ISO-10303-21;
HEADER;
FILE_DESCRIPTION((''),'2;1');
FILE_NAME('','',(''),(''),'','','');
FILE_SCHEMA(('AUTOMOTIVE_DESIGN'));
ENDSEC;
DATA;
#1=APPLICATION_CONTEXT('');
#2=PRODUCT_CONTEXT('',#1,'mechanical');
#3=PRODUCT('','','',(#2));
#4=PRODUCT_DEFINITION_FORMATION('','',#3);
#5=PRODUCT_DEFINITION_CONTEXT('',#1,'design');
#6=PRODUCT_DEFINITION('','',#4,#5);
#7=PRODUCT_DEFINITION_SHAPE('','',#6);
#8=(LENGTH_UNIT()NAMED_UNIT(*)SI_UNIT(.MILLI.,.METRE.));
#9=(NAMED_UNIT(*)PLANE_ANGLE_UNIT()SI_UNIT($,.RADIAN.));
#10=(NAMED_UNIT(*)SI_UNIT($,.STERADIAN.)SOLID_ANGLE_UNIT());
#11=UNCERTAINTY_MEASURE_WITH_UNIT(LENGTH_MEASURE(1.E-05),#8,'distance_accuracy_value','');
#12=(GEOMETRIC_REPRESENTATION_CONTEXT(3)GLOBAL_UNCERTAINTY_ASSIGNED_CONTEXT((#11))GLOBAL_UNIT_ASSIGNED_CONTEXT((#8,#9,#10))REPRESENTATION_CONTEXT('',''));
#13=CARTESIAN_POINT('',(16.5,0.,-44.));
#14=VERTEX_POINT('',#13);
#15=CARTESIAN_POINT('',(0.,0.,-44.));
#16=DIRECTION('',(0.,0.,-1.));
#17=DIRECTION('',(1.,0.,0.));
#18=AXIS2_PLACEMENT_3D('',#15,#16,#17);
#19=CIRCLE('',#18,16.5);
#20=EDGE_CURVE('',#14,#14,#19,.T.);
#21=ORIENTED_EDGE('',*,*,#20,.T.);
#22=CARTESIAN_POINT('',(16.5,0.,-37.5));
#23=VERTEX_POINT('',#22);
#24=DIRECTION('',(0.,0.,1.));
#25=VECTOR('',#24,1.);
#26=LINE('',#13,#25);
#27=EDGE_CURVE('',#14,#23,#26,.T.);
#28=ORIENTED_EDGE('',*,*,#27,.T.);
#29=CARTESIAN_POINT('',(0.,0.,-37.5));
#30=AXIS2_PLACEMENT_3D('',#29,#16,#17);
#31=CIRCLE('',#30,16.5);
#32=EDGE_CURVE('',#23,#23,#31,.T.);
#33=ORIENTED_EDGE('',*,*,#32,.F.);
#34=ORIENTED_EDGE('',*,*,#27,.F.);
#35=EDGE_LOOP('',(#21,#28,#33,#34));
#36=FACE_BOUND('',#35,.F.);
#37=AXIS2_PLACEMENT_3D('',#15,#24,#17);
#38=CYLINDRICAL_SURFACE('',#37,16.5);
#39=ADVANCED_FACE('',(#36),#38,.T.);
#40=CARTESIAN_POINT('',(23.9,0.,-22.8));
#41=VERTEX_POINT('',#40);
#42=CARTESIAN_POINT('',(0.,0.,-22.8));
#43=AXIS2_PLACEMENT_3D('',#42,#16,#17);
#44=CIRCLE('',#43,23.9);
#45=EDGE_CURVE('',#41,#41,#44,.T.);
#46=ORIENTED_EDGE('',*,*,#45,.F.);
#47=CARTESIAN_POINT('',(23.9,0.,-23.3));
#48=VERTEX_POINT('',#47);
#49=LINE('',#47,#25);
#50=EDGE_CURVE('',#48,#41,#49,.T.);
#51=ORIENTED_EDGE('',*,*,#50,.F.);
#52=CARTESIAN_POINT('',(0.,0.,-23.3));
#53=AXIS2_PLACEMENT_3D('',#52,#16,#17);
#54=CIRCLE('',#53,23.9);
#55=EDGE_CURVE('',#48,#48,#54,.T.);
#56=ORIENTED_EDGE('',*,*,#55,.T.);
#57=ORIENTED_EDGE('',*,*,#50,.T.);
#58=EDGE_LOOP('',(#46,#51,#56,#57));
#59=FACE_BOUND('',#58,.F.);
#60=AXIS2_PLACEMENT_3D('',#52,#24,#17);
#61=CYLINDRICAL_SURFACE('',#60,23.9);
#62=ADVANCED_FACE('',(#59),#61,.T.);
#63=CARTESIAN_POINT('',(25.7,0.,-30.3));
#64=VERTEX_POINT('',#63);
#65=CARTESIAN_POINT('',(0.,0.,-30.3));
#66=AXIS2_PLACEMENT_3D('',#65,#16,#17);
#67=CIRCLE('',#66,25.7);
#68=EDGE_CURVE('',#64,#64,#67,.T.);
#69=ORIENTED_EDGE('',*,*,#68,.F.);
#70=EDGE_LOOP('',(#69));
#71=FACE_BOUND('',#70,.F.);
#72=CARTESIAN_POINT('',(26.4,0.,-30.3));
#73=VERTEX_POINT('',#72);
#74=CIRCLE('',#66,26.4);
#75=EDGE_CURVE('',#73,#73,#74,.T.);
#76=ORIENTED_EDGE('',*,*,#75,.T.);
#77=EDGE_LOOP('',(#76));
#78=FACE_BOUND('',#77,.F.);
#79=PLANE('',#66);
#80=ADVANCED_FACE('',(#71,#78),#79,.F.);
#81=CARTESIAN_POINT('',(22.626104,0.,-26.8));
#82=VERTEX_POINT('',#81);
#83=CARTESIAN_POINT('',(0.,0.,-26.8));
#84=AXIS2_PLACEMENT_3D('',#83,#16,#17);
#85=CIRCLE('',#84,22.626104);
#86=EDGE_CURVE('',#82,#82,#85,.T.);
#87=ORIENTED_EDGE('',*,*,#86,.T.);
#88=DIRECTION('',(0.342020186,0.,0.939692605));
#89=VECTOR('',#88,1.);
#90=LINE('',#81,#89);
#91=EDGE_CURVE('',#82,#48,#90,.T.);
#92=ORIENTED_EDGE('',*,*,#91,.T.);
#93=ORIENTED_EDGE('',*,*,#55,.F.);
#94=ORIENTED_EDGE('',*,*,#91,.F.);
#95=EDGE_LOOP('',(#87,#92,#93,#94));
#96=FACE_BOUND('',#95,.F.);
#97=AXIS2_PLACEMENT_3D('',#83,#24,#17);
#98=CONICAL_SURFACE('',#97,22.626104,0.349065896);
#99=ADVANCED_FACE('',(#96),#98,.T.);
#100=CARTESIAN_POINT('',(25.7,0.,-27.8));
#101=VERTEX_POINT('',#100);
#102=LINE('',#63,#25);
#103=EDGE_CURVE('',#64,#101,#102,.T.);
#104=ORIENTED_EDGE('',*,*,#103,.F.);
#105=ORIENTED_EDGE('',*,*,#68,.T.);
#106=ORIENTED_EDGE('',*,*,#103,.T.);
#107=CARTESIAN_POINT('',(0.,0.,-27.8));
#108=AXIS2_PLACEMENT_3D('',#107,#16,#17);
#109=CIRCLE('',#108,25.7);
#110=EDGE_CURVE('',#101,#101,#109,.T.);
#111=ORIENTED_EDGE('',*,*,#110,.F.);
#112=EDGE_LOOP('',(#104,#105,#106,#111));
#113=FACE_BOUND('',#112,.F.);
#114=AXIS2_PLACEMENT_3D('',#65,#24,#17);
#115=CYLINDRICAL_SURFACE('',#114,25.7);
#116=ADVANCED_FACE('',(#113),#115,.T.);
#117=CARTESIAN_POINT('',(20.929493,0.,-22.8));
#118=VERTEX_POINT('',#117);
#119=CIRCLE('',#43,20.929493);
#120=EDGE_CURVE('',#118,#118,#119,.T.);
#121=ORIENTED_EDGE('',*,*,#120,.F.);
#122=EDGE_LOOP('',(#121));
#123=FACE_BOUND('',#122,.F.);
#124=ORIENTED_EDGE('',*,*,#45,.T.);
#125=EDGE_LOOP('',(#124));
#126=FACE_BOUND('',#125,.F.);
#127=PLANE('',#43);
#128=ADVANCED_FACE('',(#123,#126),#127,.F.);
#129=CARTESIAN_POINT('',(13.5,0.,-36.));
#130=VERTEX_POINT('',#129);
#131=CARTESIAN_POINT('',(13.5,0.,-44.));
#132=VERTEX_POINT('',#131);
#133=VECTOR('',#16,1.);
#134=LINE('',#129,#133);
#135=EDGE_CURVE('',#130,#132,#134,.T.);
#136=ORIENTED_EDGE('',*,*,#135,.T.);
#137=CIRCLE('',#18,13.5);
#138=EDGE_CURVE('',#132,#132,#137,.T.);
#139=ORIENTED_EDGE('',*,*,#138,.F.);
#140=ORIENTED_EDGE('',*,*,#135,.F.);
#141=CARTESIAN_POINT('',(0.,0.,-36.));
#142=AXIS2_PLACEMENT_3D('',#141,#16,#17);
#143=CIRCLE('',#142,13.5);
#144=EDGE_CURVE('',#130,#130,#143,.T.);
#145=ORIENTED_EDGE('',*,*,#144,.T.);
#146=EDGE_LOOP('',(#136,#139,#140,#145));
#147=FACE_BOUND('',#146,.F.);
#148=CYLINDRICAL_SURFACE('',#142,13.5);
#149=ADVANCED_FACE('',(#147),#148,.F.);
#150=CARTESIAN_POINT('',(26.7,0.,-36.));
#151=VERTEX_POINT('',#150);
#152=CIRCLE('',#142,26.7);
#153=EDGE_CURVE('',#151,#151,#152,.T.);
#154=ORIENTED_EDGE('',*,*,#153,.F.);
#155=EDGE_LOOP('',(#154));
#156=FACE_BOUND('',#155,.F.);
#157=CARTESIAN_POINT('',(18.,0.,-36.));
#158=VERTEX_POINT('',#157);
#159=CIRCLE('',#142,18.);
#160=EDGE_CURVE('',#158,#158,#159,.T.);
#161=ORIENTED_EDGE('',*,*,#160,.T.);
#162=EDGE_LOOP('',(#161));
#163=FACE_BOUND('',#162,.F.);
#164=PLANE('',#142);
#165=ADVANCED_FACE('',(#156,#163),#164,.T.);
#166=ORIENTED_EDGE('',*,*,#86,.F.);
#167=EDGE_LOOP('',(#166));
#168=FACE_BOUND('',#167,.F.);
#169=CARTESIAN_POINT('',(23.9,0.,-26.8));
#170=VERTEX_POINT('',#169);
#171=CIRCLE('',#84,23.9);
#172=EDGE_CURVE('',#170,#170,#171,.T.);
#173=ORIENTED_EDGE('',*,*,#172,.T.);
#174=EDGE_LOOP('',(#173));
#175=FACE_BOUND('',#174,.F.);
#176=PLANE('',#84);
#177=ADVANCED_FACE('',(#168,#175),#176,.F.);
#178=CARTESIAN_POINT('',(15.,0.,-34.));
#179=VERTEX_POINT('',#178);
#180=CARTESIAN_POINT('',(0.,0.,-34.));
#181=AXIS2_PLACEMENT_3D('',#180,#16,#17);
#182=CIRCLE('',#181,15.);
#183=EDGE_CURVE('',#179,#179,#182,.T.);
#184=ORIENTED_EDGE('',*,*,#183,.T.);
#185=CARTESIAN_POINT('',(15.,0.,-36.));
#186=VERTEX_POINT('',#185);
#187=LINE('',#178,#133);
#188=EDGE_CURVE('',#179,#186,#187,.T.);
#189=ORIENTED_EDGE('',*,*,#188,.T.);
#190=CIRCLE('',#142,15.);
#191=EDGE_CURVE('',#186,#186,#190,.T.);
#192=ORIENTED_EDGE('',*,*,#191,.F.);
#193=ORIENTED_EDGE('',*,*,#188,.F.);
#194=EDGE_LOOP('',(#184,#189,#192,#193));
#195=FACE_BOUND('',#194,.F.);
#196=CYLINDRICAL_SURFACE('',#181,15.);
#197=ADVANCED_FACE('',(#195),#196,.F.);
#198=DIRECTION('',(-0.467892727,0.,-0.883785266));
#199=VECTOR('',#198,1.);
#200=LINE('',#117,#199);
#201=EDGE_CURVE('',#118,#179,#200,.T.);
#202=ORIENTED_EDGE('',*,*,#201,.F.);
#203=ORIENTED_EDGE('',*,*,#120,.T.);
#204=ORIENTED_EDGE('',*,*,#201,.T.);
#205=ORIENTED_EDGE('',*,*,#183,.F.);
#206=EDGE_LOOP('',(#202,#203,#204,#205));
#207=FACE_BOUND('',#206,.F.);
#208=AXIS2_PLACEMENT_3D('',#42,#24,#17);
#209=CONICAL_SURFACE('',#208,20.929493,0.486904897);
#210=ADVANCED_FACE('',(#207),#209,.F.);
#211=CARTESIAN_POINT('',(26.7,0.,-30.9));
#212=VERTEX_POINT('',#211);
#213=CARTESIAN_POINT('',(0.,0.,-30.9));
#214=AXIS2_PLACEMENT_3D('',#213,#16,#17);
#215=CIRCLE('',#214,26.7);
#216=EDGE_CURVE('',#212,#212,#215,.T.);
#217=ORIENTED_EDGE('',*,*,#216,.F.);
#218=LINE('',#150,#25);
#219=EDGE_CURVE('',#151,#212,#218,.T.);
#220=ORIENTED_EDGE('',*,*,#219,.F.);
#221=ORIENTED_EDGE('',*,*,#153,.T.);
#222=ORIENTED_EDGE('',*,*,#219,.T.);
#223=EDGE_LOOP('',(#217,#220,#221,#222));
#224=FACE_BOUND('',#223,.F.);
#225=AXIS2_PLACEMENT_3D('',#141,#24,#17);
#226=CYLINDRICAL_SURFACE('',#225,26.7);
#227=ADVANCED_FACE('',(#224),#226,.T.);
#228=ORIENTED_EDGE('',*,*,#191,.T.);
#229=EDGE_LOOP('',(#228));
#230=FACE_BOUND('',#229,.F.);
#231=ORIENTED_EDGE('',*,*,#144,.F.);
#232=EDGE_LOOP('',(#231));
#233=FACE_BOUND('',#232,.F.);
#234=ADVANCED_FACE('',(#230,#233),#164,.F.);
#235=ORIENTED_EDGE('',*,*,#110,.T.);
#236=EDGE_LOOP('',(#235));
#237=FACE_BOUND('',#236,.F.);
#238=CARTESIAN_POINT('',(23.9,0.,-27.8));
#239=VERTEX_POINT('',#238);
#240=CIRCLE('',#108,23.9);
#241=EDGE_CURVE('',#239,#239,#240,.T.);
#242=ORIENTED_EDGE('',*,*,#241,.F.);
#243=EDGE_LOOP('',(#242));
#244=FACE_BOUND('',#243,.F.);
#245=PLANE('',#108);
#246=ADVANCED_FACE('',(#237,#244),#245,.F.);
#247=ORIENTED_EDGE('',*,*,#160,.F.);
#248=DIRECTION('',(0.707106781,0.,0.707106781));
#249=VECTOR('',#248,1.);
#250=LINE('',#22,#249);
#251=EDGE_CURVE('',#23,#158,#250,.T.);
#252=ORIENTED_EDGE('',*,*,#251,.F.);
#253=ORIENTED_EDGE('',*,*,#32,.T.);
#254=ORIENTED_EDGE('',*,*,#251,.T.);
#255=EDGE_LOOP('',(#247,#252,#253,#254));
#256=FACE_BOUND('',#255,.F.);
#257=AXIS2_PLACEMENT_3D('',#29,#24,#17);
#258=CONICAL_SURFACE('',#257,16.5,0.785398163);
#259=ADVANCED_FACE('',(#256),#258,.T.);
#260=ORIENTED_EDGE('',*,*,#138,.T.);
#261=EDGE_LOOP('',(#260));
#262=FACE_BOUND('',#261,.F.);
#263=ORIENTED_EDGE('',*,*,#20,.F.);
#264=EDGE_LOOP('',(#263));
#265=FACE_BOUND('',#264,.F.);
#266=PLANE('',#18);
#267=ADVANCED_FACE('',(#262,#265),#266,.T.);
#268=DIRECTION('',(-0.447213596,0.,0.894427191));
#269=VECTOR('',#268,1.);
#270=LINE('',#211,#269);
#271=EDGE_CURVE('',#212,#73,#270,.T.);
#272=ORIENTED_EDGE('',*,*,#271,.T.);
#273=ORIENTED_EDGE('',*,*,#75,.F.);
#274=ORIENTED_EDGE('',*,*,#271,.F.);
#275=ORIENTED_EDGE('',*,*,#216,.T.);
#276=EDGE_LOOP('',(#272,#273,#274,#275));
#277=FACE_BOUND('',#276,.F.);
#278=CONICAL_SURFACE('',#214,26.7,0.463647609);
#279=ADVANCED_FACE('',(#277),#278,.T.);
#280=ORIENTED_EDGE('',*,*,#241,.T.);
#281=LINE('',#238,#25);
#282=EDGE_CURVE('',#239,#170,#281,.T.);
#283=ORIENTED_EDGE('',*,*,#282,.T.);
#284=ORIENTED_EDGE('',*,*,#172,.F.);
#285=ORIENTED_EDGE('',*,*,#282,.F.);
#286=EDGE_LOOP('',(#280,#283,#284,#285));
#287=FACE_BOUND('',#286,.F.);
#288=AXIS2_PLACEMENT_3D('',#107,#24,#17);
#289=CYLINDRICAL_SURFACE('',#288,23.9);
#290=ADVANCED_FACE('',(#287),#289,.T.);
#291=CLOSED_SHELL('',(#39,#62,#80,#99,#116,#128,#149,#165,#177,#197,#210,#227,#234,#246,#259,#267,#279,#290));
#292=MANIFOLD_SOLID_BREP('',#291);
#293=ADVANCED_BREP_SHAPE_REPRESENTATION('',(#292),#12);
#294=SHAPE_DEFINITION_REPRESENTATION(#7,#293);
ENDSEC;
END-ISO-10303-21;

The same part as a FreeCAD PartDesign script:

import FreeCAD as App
import Part
import Sketcher

V = App.Vector
Q = App.Units.Quantity


def add_polygon(sketch, points):
    """Adds a closed chain of lines whose ends are joined by coincident constraints."""
    first, n = sketch.GeometryCount, len(points)
    for a, b in zip(points, points[1:] + points[:1]):
        sketch.addGeometry(Part.LineSegment(App.Vector(*a, 0), App.Vector(*b, 0)), False)
    for i in range(n):
        sketch.addConstraint(Sketcher.Constraint("Coincident", first + i, 2, first + (i + 1) % n, 1))

doc = App.newDocument("Part")
body = doc.addObject("PartDesign::Body", "Body")

# Sketch on XZ plane
sketch1 = body.newObject("Sketcher::SketchObject", "Sketch")
sketch1.AttachmentSupport = (doc.getObject("XZ_Plane"), [""])
sketch1.MapMode = "FlatFace"
add_polygon(sketch1, [(23.9, -22.8), (20.9, -22.8), (15, -34), (15, -36), (13.5, -36), (13.5, -44), (16.5, -44), (16.5, -37.5), (18, -36), (26.7, -36), (26.7, -30.9), (26.4, -30.3), (25.7, -30.3), (25.7, -27.8), (23.9, -27.8), (23.9, -26.8), (22.6, -26.8), (23.9, -23.3)])  # lines 0-17
sketch1.addConstraint(Sketcher.Constraint("Horizontal", 0))
sketch1.addConstraint(Sketcher.Constraint("Vertical", 2))
sketch1.addConstraint(Sketcher.Constraint("Horizontal", 3))
sketch1.addConstraint(Sketcher.Constraint("Vertical", 4))
sketch1.addConstraint(Sketcher.Constraint("Horizontal", 5))
sketch1.addConstraint(Sketcher.Constraint("Vertical", 6))
sketch1.addConstraint(Sketcher.Constraint("Horizontal", 8))
sketch1.addConstraint(Sketcher.Constraint("Vertical", 9))
sketch1.addConstraint(Sketcher.Constraint("Horizontal", 11))
sketch1.addConstraint(Sketcher.Constraint("Vertical", 12))
sketch1.addConstraint(Sketcher.Constraint("Horizontal", 13))
sketch1.addConstraint(Sketcher.Constraint("Vertical", 14))
sketch1.addConstraint(Sketcher.Constraint("Horizontal", 15))
sketch1.addConstraint(Sketcher.Constraint("Vertical", 17))
sketch1.addConstraint(Sketcher.Constraint("Horizontal", 3, 2, 7, 2))
sketch1.addConstraint(Sketcher.Constraint("Vertical", 14, 2, 16, 2))
sketch1.addConstraint(Sketcher.Constraint("DistanceX", 5, 1, 5, 2, 3.0))
sketch1.addConstraint(Sketcher.Constraint("DistanceY", 2, 2, 2, 1, 2.0))
sketch1.addConstraint(Sketcher.Constraint("DistanceY", 4, 2, 4, 1, 8.0))
sketch1.addConstraint(Sketcher.Constraint("DistanceY", 14, 1, 14, 2, 1.0))
sketch1.addConstraint(Sketcher.Constraint("Angle", 7, Q("45 deg")))
sketch1.addConstraint(Sketcher.Constraint("Angle", 16, Q("69.999997 deg")))
sketch1.addConstraint(Sketcher.Constraint("DistanceX", 3, 2, 3, 1, 1.5))
sketch1.addConstraint(Sketcher.Constraint("DistanceX", 8, 1, 8, 2, 8.7))
sketch1.addConstraint(Sketcher.Constraint("DistanceX", 11, 2, 11, 1, 0.7))
sketch1.addConstraint(Sketcher.Constraint("DistanceX", 13, 2, 13, 1, 1.8))
sketch1.addConstraint(Sketcher.Constraint("DistanceY", 6, 1, 6, 2, 6.5))
sketch1.addConstraint(Sketcher.Constraint("DistanceY", 9, 1, 9, 2, 5.1))
sketch1.addConstraint(Sketcher.Constraint("DistanceY", 12, 1, 12, 2, 2.5))
sketch1.addConstraint(Sketcher.Constraint("DistanceY", 17, 1, 17, 2, 0.5))
sketch1.addConstraint(Sketcher.Constraint("DistanceX", -1, 1, 1, 2, 15.0))
sketch1.addConstraint(Sketcher.Constraint("DistanceY", 1, 2, -1, 1, 34.0))
sketch1.addConstraint(Sketcher.Constraint("DistanceX", 11, 2, 9, 2, 1.0))
sketch1.addConstraint(Sketcher.Constraint("DistanceY", 12, 2, 0, 2, 5.0))
sketch1.addConstraint(Sketcher.Constraint("DistanceY", 0, 2, -1, 1, 22.8))
sketch1.addConstraint(Sketcher.Constraint("Distance", 1, 12.672762))
revolution = body.newObject("PartDesign::Revolution", "Revolution")
revolution.Profile = sketch1
revolution.ReferenceAxis = (sketch1, ["V_Axis"])
revolution.Angle = 360

doc.recompute()
